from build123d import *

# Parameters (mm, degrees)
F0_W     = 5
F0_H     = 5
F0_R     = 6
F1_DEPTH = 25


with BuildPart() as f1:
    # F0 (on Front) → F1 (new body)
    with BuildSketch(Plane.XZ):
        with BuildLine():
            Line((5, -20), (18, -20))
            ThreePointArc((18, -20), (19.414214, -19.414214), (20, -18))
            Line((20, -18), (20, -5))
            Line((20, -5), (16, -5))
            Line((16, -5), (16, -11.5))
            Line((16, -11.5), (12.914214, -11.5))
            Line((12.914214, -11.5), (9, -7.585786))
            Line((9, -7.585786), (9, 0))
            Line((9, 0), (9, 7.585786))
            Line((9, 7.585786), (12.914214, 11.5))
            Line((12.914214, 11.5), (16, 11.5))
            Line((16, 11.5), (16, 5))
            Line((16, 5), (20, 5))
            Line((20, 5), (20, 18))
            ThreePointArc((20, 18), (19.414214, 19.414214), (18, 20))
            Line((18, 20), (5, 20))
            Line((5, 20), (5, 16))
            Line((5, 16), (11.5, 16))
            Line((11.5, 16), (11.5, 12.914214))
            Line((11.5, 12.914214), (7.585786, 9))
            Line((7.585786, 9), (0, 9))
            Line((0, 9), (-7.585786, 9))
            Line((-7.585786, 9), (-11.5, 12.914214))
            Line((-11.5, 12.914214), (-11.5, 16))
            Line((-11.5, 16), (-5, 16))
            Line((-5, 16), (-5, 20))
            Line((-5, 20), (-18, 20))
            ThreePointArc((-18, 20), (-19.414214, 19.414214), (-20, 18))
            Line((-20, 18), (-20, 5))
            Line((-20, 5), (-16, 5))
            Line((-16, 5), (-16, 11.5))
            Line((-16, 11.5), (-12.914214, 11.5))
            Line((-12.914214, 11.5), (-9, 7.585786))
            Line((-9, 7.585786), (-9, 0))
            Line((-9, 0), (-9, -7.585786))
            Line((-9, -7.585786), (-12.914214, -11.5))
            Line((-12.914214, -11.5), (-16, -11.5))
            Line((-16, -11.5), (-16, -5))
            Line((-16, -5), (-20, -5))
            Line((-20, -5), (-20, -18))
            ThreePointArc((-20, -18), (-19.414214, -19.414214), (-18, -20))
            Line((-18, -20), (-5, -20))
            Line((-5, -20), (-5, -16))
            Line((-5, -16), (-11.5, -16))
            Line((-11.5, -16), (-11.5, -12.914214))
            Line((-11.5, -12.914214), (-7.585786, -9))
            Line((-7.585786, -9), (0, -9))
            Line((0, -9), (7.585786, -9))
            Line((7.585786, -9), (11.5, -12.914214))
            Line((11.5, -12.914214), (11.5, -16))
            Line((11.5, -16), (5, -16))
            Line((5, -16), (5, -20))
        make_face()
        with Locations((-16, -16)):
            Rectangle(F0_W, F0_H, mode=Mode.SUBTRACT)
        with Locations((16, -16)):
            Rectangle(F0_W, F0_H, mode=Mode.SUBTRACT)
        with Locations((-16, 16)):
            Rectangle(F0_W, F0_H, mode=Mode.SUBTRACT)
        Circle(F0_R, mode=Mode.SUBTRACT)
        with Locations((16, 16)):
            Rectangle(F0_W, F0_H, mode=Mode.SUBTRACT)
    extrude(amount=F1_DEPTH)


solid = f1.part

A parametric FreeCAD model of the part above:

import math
import FreeCAD as App
import Part
import Sketcher

V = App.Vector


def add_polygon(sketch, points):
    """Adds a closed chain of lines whose ends are joined by coincident constraints."""
    first, n = sketch.GeometryCount, len(points)
    for a, b in zip(points, points[1:] + points[:1]):
        sketch.addGeometry(Part.LineSegment(App.Vector(*a, 0), App.Vector(*b, 0)), False)
    for i in range(n):
        sketch.addConstraint(Sketcher.Constraint("Coincident", first + i, 2, first + (i + 1) % n, 1))

doc = App.newDocument("Part")
body = doc.addObject("PartDesign::Body", "Body")

# Sketch on XZ plane
sketch1 = body.newObject("Sketcher::SketchObject", "Sketch")
sketch1.AttachmentSupport = (doc.getObject("XZ_Plane"), [""])
sketch1.MapMode = "FlatFace"
sketch1.addGeometry(Part.LineSegment(V(5, -20, 0), V(18, -20, 0)), False)  # 0
sketch1.addGeometry(Part.ArcOfCircle(Part.Circle(V(18, -18, 0), V(0, 0, 1), 2), math.radians(-90), math.radians(0)), False)  # 1
sketch1.addGeometry(Part.LineSegment(V(20, -18, 0), V(20, -5, 0)), False)  # 2
sketch1.addGeometry(Part.LineSegment(V(20, -5, 0), V(16, -5, 0)), False)  # 3
sketch1.addGeometry(Part.LineSegment(V(16, -5, 0), V(16, -11.5, 0)), False)  # 4
sketch1.addGeometry(Part.LineSegment(V(16, -11.5, 0), V(12.9, -11.5, 0)), False)  # 5
sketch1.addGeometry(Part.LineSegment(V(12.9, -11.5, 0), V(9, -7.6, 0)), False)  # 6
sketch1.addGeometry(Part.LineSegment(V(9, -7.6, 0), V(9, 7.6, 0)), False)  # 7
sketch1.addGeometry(Part.LineSegment(V(9, 7.6, 0), V(12.9, 11.5, 0)), False)  # 8
sketch1.addGeometry(Part.LineSegment(V(12.9, 11.5, 0), V(16, 11.5, 0)), False)  # 9
sketch1.addGeometry(Part.LineSegment(V(16, 11.5, 0), V(16, 5, 0)), False)  # 10
sketch1.addGeometry(Part.LineSegment(V(16, 5, 0), V(20, 5, 0)), False)  # 11
sketch1.addGeometry(Part.LineSegment(V(20, 5, 0), V(20, 18, 0)), False)  # 12
sketch1.addGeometry(Part.ArcOfCircle(Part.Circle(V(18, 18, 0), V(0, 0, 1), 2), math.radians(0), math.radians(90)), False)  # 13
sketch1.addGeometry(Part.LineSegment(V(18, 20, 0), V(5, 20, 0)), False)  # 14
sketch1.addGeometry(Part.LineSegment(V(5, 20, 0), V(5, 16, 0)), False)  # 15
sketch1.addGeometry(Part.LineSegment(V(5, 16, 0), V(11.5, 16, 0)), False)  # 16
sketch1.addGeometry(Part.LineSegment(V(11.5, 16, 0), V(11.5, 12.9, 0)), False)  # 17
sketch1.addGeometry(Part.LineSegment(V(11.5, 12.9, 0), V(7.6, 9, 0)), False)  # 18
sketch1.addGeometry(Part.LineSegment(V(7.6, 9, 0), V(-7.6, 9, 0)), False)  # 19
sketch1.addGeometry(Part.LineSegment(V(-7.6, 9, 0), V(-11.5, 12.9, 0)), False)  # 20
sketch1.addGeometry(Part.LineSegment(V(-11.5, 12.9, 0), V(-11.5, 16, 0)), False)  # 21
sketch1.addGeometry(Part.LineSegment(V(-11.5, 16, 0), V(-5, 16, 0)), False)  # 22
sketch1.addGeometry(Part.LineSegment(V(-5, 16, 0), V(-5, 20, 0)), False)  # 23
sketch1.addGeometry(Part.LineSegment(V(-5, 20, 0), V(-18, 20, 0)), False)  # 24
sketch1.addGeometry(Part.ArcOfCircle(Part.Circle(V(-18, 18, 0), V(0, 0, 1), 2), math.radians(90), math.radians(180)), False)  # 25
sketch1.addGeometry(Part.LineSegment(V(-20, 18, 0), V(-20, 5, 0)), False)  # 26
sketch1.addGeometry(Part.LineSegment(V(-20, 5, 0), V(-16, 5, 0)), False)  # 27
sketch1.addGeometry(Part.LineSegment(V(-16, 5, 0), V(-16, 11.5, 0)), False)  # 28
sketch1.addGeometry(Part.LineSegment(V(-16, 11.5, 0), V(-12.9, 11.5, 0)), False)  # 29
sketch1.addGeometry(Part.LineSegment(V(-12.9, 11.5, 0), V(-9, 7.6, 0)), False)  # 30
sketch1.addGeometry(Part.LineSegment(V(-9, 7.6, 0), V(-9, -7.6, 0)), False)  # 31
sketch1.addGeometry(Part.LineSegment(V(-9, -7.6, 0), V(-12.9, -11.5, 0)), False)  # 32
sketch1.addGeometry(Part.LineSegment(V(-12.9, -11.5, 0), V(-16, -11.5, 0)), False)  # 33
sketch1.addGeometry(Part.LineSegment(V(-16, -11.5, 0), V(-16, -5, 0)), False)  # 34
sketch1.addGeometry(Part.LineSegment(V(-16, -5, 0), V(-20, -5, 0)), False)  # 35
sketch1.addGeometry(Part.LineSegment(V(-20, -5, 0), V(-20, -18, 0)), False)  # 36
sketch1.addGeometry(Part.ArcOfCircle(Part.Circle(V(-18, -18, 0), V(0, 0, 1), 2), math.radians(180), math.radians(270)), False)  # 37
sketch1.addGeometry(Part.LineSegment(V(-18, -20, 0), V(-5, -20, 0)), False)  # 38
sketch1.addGeometry(Part.LineSegment(V(-5, -20, 0), V(-5, -16, 0)), False)  # 39
sketch1.addGeometry(Part.LineSegment(V(-5, -16, 0), V(-11.5, -16, 0)), False)  # 40
sketch1.addGeometry(Part.LineSegment(V(-11.5, -16, 0), V(-11.5, -12.9, 0)), False)  # 41
sketch1.addGeometry(Part.LineSegment(V(-11.5, -12.9, 0), V(-7.6, -9, 0)), False)  # 42
sketch1.addGeometry(Part.LineSegment(V(-7.6, -9, 0), V(7.6, -9, 0)), False)  # 43
sketch1.addGeometry(Part.LineSegment(V(7.6, -9, 0), V(11.5, -12.9, 0)), False)  # 44
sketch1.addGeometry(Part.LineSegment(V(11.5, -12.9, 0), V(11.5, -16, 0)), False)  # 45
sketch1.addGeometry(Part.LineSegment(V(11.5, -16, 0), V(5, -16, 0)), False)  # 46
sketch1.addGeometry(Part.LineSegment(V(5, -16, 0), V(5, -20, 0)), False)  # 47
add_polygon(sketch1, [(-13.5, -18.5), (-18.5, -18.5), (-18.5, -13.5), (-13.5, -13.5)])  # lines 48-51
add_polygon(sketch1, [(18.5, -18.5), (13.5, -18.5), (13.5, -13.5), (18.5, -13.5)])  # lines 52-55
add_polygon(sketch1, [(-13.5, 13.5), (-18.5, 13.5), (-18.5, 18.5), (-13.5, 18.5)])  # lines 56-59
sketch1.addGeometry(Part.Circle(V(0, 0, 0), V(0, 0, 1), 6), False)  # 60
add_polygon(sketch1, [(18.5, 13.5), (13.5, 13.5), (13.5, 18.5), (18.5, 18.5)])  # lines 61-64
sketch1.addConstraint([
    Sketcher.Constraint("Tangent", 0, 2, 1, 1),
    Sketcher.Constraint("Tangent", 1, 2, 2, 1),
    Sketcher.Constraint("Coincident", 2, 2, 3, 1),
    Sketcher.Constraint("Coincident", 3, 2, 4, 1),
    Sketcher.Constraint("Coincident", 4, 2, 5, 1),
    Sketcher.Constraint("Coincident", 5, 2, 6, 1),
    Sketcher.Constraint("Coincident", 6, 2, 7, 1),
    Sketcher.Constraint("Coincident", 7, 2, 8, 1),
    Sketcher.Constraint("Coincident", 8, 2, 9, 1),
    Sketcher.Constraint("Coincident", 9, 2, 10, 1),
    Sketcher.Constraint("Coincident", 10, 2, 11, 1),
    Sketcher.Constraint("Coincident", 11, 2, 12, 1),
    Sketcher.Constraint("Tangent", 12, 2, 13, 1),
    Sketcher.Constraint("Tangent", 13, 2, 14, 1),
    Sketcher.Constraint("Coincident", 14, 2, 15, 1),
    Sketcher.Constraint("Coincident", 15, 2, 16, 1),
    Sketcher.Constraint("Coincident", 16, 2, 17, 1),
    Sketcher.Constraint("Coincident", 17, 2, 18, 1),
    Sketcher.Constraint("Coincident", 18, 2, 19, 1),
    Sketcher.Constraint("Coincident", 19, 2, 20, 1),
    Sketcher.Constraint("Coincident", 20, 2, 21, 1),
    Sketcher.Constraint("Coincident", 21, 2, 22, 1),
    Sketcher.Constraint("Coincident", 22, 2, 23, 1),
    Sketcher.Constraint("Coincident", 23, 2, 24, 1),
    Sketcher.Constraint("Tangent", 24, 2, 25, 1),
    Sketcher.Constraint("Tangent", 25, 2, 26, 1),
    Sketcher.Constraint("Coincident", 26, 2, 27, 1),
    Sketcher.Constraint("Coincident", 27, 2, 28, 1),
    Sketcher.Constraint("Coincident", 28, 2, 29, 1),
    Sketcher.Constraint("Coincident", 29, 2, 30, 1),
    Sketcher.Constraint("Coincident", 30, 2, 31, 1),
    Sketcher.Constraint("Coincident", 31, 2, 32, 1),
    Sketcher.Constraint("Coincident", 32, 2, 33, 1),
    Sketcher.Constraint("Coincident", 33, 2, 34, 1),
    Sketcher.Constraint("Coincident", 34, 2, 35, 1),
    Sketcher.Constraint("Coincident", 35, 2, 36, 1),
    Sketcher.Constraint("Tangent", 36, 2, 37, 1),
    Sketcher.Constraint("Tangent", 37, 2, 38, 1),
    Sketcher.Constraint("Coincident", 38, 2, 39, 1),
    Sketcher.Constraint("Coincident", 39, 2, 40, 1),
    Sketcher.Constraint("Coincident", 40, 2, 41, 1),
    Sketcher.Constraint("Coincident", 41, 2, 42, 1),
    Sketcher.Constraint("Coincident", 42, 2, 43, 1),
    Sketcher.Constraint("Coincident", 43, 2, 44, 1),
    Sketcher.Constraint("Coincident", 44, 2, 45, 1),
    Sketcher.Constraint("Coincident", 45, 2, 46, 1),
    Sketcher.Constraint("Coincident", 46, 2, 47, 1),
    Sketcher.Constraint("Coincident", 47, 2, 0, 1),
    Sketcher.Constraint("Horizontal", 0),
    Sketcher.Constraint("Vertical", 2),
    Sketcher.Constraint("Horizontal", 3),
    Sketcher.Constraint("Vertical", 4),
    Sketcher.Constraint("Horizontal", 5),
    Sketcher.Constraint("Vertical", 7),
    Sketcher.Constraint("Horizontal", 9),
    Sketcher.Constraint("Vertical", 10),
    Sketcher.Constraint("Horizontal", 11),
    Sketcher.Constraint("Vertical", 12),
    Sketcher.Constraint("Horizontal", 14),
    Sketcher.Constraint("Vertical", 15),
    Sketcher.Constraint("Horizontal", 16),
    Sketcher.Constraint("Vertical", 17),
    Sketcher.Constraint("Horizontal", 19),
    Sketcher.Constraint("Vertical", 21),
    Sketcher.Constraint("Horizontal", 22),
    Sketcher.Constraint("Vertical", 23),
    Sketcher.Constraint("Horizontal", 24),
    Sketcher.Constraint("Vertical", 26),
    Sketcher.Constraint("Horizontal", 27),
    Sketcher.Constraint("Vertical", 28),
    Sketcher.Constraint("Horizontal", 29),
    Sketcher.Constraint("Vertical", 31),
    Sketcher.Constraint("Horizontal", 33),
    Sketcher.Constraint("Vertical", 34),
    Sketcher.Constraint("Horizontal", 35),
    Sketcher.Constraint("Vertical", 36),
    Sketcher.Constraint("Horizontal", 38),
    Sketcher.Constraint("Vertical", 39),
    Sketcher.Constraint("Horizontal", 40),
    Sketcher.Constraint("Vertical", 41),
    Sketcher.Constraint("Horizontal", 43),
    Sketcher.Constraint("Vertical", 45),
    Sketcher.Constraint("Horizontal", 46),
    Sketcher.Constraint("Vertical", 47),
    Sketcher.Constraint("Horizontal", 48),
    Sketcher.Constraint("Vertical", 49),
    Sketcher.Constraint("Horizontal", 50),
    Sketcher.Constraint("Vertical", 51),
    Sketcher.Constraint("Horizontal", 52),
    Sketcher.Constraint("Vertical", 53),
    Sketcher.Constraint("Horizontal", 54),
    Sketcher.Constraint("Vertical", 55),
    Sketcher.Constraint("Horizontal", 56),
    Sketcher.Constraint("Vertical", 57),
    Sketcher.Constraint("Horizontal", 58),
    Sketcher.Constraint("Vertical", 59),
    Sketcher.Constraint("Horizontal", 61),
    Sketcher.Constraint("Vertical", 62),
    Sketcher.Constraint("Horizontal", 63),
    Sketcher.Constraint("Vertical", 64),
    Sketcher.Constraint("Coincident", 60, 3, -1, 1),
    Sketcher.Constraint("Equal", 1, 13),
    Sketcher.Constraint("Equal", 13, 25),
    Sketcher.Constraint("Equal", 25, 37),
    Sketcher.Constraint("Symmetric", 1, 3, 25, 3, -1, 1),
    Sketcher.Constraint("Symmetric", 13, 3, 37, 3, -1, 1),
    Sketcher.Constraint("Symmetric", 3, 2, 27, 2, -1, 1),
    Sketcher.Constraint("Symmetric", 5, 2, 29, 2, -1, 1),
    Sketcher.Constraint("Symmetric", 6, 2, 30, 2, -1, 1),
    Sketcher.Constraint("Symmetric", 8, 2, 32, 2, -1, 1),
    Sketcher.Constraint("Symmetric", 10, 2, 34, 2, -1, 1),
    Sketcher.Constraint("Symmetric", 15, 2, 39, 2, -1, 1),
    Sketcher.Constraint("Symmetric", 17, 2, 41, 2, -1, 1),
    Sketcher.Constraint("Symmetric", 18, 2, 42, 2, -1, 1),
    Sketcher.Constraint("Symmetric", 20, 2, 44, 2, -1, 1),
    Sketcher.Constraint("Symmetric", 22, 2, 46, 2, -1, 1),
    Sketcher.Constraint("Symmetric", 54, 2, 56, 2, -1, 1),
    Sketcher.Constraint("Symmetric", 52, 2, 58, 2, -1, 1),
    Sketcher.Constraint("Symmetric", 50, 2, 61, 2, -1, 1),
    Sketcher.Constraint("Symmetric", 48, 2, 63, 2, -1, 1),
    Sketcher.Constraint("Symmetric", 13, 3, 25, 3, -2),
    Sketcher.Constraint("Symmetric", 17, 2, 20, 2, -2),
    Sketcher.Constraint("Symmetric", 15, 2, 22, 2, -2),
    Sketcher.Constraint("Symmetric", 10, 2, 27, 2, -2),
    Sketcher.Constraint("Symmetric", 8, 2, 29, 2, -2),
    Sketcher.Constraint("Symmetric", 51, 2, 52, 2, -2),
    Sketcher.Constraint("Symmetric", 49, 2, 54, 2, -2),
    Sketcher.Constraint("Perpendicular", 6, 8),
    Sketcher.Constraint("Parallel", 8, 18),
    Sketcher.Constraint("Perpendicular", 18, 20),
    Sketcher.Constraint("Perpendicular", 30, 32),
    Sketcher.Constraint("Perpendicular", 42, 44),
    Sketcher.Constraint("Horizontal", 7, 2, 30, 2),
    Sketcher.Constraint("Equal", 38, 2),
    Sketcher.Constraint("Equal", 46, 4),
    Sketcher.Constraint("Equal", 43, 7),
    Sketcher.Constraint("Equal", 35, 15),
    Sketcher.Constraint("Equal", 33, 17),
    Sketcher.Constraint("Equal", 63, 49),
    Sketcher.Constraint("Equal", 8, 18),
    Sketcher.Constraint("Diameter", 60, 12.0),
    Sketcher.Constraint("Radius", 1, 1.999999),
    Sketcher.Constraint("DistanceX", 0, 1, 0, 2, 13.0),
    Sketcher.Constraint("DistanceX", 3, 2, 3, 1, 4.0),
    Sketcher.Constraint("DistanceX", 48, 2, 48, 1, 5.0),
    Sketcher.Constraint("DistanceX", 16, 1, 16, 2, 6.5),
    Sketcher.Constraint("DistanceX", -1, 1, 1, 3, 18.000001),
    Sketcher.Constraint("DistanceX", -1, 1, 6, 2, 9.0),
    Sketcher.Constraint("DistanceX", 48, 2, -1, 1, 18.5),
    Sketcher.Constraint("DistanceY", 48, 2, -1, 1, 18.5),
    Sketcher.Constraint("DistanceX", 5, 2, 5, 1, 3.085786),
])
pad1 = body.newObject("PartDesign::Pad", "Pad")
pad1.Profile = sketch1
pad1.Length = 25

doc.recompute()
